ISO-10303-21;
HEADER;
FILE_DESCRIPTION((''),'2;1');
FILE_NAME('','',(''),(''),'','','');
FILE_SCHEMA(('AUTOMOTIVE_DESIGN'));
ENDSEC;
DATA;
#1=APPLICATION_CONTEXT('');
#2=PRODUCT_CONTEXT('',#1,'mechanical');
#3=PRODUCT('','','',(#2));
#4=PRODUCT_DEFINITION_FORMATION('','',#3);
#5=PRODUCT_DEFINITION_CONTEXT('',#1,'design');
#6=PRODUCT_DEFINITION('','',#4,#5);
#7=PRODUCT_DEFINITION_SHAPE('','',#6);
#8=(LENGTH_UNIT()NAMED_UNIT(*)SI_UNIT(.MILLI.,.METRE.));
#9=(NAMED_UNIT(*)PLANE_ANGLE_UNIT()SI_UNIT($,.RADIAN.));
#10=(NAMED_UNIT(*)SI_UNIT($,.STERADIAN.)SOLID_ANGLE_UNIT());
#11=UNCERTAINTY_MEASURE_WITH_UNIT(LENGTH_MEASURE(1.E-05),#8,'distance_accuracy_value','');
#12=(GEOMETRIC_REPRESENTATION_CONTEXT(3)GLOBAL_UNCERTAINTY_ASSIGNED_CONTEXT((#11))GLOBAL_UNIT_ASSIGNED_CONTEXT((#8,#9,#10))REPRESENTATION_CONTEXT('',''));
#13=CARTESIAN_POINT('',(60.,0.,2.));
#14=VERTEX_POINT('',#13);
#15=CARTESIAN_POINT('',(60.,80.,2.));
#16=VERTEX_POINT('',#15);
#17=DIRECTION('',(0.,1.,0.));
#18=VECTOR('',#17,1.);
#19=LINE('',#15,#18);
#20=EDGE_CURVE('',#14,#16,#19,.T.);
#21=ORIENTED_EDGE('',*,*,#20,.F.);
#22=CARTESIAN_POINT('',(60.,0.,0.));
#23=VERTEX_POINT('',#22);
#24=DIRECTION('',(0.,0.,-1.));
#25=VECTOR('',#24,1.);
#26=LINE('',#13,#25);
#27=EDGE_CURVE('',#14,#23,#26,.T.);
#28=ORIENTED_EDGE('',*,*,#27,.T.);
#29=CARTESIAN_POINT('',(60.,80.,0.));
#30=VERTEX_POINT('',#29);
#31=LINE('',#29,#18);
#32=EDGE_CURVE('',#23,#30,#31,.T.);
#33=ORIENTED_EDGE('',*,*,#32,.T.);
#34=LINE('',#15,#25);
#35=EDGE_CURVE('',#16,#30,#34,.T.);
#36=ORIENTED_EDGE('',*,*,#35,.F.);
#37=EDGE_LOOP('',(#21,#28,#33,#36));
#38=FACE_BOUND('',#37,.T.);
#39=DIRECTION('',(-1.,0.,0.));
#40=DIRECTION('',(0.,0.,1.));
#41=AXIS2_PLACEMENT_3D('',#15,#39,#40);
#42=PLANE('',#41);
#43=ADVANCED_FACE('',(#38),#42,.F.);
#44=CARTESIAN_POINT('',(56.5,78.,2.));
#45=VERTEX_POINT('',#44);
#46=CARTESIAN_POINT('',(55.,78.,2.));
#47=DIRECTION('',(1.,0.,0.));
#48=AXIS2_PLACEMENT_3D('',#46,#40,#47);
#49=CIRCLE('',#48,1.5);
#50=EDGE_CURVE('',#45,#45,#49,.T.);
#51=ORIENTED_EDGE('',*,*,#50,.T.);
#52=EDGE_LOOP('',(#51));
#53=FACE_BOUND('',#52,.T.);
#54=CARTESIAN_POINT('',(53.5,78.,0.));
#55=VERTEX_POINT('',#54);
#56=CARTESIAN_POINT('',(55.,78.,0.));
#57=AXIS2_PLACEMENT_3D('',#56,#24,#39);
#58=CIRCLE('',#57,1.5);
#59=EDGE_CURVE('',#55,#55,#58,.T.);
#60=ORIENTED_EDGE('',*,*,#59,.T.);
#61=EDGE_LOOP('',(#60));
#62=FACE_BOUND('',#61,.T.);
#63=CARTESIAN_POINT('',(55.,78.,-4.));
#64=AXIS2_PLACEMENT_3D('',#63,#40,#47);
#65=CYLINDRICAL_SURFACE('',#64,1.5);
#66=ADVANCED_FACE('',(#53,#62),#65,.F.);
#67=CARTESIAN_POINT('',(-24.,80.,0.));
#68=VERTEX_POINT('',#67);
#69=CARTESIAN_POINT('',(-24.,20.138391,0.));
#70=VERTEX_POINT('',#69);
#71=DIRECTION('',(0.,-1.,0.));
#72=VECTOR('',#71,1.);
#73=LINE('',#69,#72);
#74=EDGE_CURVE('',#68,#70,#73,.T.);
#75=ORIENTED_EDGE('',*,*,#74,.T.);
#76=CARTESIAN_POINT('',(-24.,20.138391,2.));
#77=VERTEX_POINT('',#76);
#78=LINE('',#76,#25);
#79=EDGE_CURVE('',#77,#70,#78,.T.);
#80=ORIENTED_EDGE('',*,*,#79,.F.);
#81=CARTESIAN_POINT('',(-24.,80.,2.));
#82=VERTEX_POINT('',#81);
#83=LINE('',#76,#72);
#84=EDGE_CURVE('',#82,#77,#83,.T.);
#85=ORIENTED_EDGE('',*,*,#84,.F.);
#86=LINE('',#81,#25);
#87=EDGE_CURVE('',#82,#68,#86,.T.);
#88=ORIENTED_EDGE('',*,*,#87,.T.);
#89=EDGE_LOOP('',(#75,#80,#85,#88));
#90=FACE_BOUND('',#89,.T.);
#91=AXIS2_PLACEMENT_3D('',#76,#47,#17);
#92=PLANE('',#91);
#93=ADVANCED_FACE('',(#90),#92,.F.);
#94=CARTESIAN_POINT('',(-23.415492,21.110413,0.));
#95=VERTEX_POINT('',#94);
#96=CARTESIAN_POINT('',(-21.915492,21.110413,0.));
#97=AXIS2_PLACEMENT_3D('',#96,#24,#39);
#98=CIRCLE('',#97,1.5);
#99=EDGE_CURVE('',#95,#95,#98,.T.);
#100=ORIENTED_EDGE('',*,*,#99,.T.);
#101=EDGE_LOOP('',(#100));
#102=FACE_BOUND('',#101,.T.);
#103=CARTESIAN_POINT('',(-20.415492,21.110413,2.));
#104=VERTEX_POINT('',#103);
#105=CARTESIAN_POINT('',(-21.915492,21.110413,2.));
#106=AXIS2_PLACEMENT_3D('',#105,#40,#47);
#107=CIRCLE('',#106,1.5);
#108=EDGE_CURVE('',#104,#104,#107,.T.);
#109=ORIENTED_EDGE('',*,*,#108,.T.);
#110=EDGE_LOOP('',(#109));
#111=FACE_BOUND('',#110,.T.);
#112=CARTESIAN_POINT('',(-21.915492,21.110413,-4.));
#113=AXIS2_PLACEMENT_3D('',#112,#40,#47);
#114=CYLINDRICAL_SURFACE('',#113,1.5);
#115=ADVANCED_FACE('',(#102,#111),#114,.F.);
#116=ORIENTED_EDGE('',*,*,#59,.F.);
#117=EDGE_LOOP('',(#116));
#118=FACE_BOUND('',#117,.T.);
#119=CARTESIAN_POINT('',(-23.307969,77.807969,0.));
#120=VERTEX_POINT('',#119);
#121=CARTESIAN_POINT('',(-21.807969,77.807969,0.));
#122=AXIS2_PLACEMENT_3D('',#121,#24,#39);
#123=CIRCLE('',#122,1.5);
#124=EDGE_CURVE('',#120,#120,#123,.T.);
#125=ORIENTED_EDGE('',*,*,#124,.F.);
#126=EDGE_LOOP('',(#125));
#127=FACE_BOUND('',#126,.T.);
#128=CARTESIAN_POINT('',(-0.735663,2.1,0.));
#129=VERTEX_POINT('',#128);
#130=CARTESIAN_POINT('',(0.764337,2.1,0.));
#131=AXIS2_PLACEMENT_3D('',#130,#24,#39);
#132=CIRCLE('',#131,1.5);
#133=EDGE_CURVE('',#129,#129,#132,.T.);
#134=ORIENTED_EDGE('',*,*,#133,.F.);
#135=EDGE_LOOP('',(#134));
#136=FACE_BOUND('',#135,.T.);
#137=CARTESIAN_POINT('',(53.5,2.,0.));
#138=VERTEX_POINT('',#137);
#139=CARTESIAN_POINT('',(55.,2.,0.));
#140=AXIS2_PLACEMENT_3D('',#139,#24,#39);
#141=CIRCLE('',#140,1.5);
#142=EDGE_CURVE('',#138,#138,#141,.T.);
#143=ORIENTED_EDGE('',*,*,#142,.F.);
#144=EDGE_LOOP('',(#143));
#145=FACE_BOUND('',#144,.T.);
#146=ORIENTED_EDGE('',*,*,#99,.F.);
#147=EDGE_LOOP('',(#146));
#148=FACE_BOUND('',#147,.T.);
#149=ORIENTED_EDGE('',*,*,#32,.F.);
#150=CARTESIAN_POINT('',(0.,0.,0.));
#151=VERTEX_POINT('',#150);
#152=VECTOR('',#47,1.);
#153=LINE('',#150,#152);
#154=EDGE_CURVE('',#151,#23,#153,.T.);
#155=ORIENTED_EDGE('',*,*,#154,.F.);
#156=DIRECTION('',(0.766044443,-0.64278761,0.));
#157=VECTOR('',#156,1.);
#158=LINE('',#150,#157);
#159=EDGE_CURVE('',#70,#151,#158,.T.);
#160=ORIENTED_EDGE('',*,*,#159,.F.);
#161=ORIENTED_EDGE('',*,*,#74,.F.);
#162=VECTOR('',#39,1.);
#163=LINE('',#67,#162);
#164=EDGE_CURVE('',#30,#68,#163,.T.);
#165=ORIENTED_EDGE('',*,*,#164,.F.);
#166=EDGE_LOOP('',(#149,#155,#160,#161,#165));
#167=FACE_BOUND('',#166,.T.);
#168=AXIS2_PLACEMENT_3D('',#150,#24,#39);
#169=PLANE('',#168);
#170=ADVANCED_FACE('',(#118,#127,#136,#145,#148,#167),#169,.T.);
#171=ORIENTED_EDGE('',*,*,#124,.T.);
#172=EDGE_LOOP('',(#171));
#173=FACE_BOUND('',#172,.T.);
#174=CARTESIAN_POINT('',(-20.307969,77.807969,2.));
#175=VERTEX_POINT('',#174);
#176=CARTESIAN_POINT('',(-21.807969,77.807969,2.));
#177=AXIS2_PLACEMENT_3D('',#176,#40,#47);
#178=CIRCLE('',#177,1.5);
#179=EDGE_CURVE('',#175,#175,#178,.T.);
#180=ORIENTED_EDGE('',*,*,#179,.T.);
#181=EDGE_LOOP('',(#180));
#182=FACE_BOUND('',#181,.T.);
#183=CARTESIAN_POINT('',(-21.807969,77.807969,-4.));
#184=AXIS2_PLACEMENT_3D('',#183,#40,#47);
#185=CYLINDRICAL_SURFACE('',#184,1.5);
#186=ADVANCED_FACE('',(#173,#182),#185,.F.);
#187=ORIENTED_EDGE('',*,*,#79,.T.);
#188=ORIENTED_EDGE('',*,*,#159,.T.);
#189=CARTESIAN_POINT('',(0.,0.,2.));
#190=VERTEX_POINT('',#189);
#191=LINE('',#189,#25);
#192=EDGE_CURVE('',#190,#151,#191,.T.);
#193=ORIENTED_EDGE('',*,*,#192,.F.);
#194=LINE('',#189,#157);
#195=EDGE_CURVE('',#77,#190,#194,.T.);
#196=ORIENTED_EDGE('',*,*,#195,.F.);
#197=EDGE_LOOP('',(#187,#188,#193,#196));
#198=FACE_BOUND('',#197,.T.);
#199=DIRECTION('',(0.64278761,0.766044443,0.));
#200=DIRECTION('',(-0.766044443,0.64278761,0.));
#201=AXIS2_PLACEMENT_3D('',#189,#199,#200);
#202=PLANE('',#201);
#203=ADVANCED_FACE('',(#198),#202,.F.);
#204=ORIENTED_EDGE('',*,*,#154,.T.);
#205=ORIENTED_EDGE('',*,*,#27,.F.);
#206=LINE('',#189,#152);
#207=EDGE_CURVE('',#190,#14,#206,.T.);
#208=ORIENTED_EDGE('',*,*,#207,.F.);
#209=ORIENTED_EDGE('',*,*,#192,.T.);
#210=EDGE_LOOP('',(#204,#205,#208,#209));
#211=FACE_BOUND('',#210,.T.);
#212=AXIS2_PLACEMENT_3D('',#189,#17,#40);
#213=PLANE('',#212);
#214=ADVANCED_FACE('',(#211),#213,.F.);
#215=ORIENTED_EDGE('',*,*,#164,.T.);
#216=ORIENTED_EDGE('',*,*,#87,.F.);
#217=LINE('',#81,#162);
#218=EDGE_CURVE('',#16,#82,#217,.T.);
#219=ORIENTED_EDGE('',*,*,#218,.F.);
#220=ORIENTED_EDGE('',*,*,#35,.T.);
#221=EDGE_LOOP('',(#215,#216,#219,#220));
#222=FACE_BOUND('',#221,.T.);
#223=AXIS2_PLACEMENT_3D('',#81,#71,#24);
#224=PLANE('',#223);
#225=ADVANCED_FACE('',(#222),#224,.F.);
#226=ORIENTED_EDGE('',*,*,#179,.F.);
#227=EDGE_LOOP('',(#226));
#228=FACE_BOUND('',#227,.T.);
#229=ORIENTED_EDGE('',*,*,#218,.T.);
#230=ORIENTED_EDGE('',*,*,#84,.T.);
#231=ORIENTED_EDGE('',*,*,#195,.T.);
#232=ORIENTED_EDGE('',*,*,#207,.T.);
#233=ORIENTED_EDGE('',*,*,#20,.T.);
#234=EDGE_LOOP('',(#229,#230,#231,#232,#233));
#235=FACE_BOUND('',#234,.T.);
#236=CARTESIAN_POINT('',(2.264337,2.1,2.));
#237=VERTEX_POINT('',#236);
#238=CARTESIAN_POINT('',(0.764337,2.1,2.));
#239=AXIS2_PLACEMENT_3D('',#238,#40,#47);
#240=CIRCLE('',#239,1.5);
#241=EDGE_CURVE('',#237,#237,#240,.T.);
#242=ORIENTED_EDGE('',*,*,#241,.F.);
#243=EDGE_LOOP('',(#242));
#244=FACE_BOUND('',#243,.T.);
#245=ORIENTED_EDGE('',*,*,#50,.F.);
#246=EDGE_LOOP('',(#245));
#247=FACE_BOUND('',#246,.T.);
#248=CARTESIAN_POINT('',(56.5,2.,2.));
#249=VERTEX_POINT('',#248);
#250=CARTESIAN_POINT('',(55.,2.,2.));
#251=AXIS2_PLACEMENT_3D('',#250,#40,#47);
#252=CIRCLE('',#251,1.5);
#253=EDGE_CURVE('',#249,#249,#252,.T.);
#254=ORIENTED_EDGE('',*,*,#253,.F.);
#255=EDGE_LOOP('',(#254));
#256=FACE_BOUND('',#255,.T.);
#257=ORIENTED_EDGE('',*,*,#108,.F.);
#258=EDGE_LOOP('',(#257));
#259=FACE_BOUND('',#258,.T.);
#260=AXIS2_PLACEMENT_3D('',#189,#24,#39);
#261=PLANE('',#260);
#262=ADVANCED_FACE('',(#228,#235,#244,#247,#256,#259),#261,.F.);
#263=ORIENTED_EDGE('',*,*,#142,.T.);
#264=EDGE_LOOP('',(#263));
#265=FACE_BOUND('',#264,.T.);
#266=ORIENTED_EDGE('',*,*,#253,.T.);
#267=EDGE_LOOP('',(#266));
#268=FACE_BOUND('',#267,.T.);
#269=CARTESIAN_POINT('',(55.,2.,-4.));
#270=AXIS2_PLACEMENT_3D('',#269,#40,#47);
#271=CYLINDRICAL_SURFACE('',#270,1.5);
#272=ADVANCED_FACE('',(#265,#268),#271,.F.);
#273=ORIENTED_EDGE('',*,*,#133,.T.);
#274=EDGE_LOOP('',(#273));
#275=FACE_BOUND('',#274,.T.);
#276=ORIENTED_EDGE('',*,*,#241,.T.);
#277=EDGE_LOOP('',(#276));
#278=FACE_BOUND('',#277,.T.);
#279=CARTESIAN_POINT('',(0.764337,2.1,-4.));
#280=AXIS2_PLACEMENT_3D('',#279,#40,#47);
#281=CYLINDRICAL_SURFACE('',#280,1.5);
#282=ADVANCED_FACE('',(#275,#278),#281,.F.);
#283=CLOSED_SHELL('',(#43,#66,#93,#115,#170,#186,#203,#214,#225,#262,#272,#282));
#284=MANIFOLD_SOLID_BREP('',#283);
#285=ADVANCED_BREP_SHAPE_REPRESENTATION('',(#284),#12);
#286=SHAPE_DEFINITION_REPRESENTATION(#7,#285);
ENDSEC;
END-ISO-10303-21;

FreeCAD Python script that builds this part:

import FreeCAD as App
import Part
import Sketcher
Q = App.Units.Quantity


def add_polygon(sketch, points):
    """Adds a closed chain of lines whose ends are joined by coincident constraints."""
    first, n = sketch.GeometryCount, len(points)
    for a, b in zip(points, points[1:] + points[:1]):
        sketch.addGeometry(Part.LineSegment(App.Vector(*a, 0), App.Vector(*b, 0)), False)
    for i in range(n):
        sketch.addConstraint(Sketcher.Constraint("Coincident", first + i, 2, first + (i + 1) % n, 1))

doc = App.newDocument("Part")
params = doc.addObject("Spreadsheet::Sheet", "Params")
for row, (alias, value) in enumerate([
    ("sketch1_width", "60 mm"),
    ("sketch1_width2", "84 mm"),
    ("sketch1_height", "80 mm"),
    ("pad1_length", "2 mm"),
    ("sketch2_diameter", "3 mm"),
    ("pocket1_length", "6 mm"),
], start=1):
    params.set(f"A{row}", alias)
    params.set(f"B{row}", "=" + value)
    params.setAlias(f"B{row}", alias)

body = doc.addObject("PartDesign::Body", "Body")

# Sketch on XY plane
sketch1 = body.newObject("Sketcher::SketchObject", "Sketch")
sketch1.AttachmentSupport = (doc.getObject("XY_Plane"), [""])
sketch1.MapMode = "FlatFace"
add_polygon(sketch1, [(0, 0), (60, 0), (60, 80), (-24, 80), (-24, 20.138391)])  # lines 0-4
sketch1.addConstraint(Sketcher.Constraint("Horizontal", 0))
sketch1.addConstraint(Sketcher.Constraint("Vertical", 1))
sketch1.addConstraint(Sketcher.Constraint("Horizontal", 2))
sketch1.addConstraint(Sketcher.Constraint("Vertical", 3))
sketch1.addConstraint(Sketcher.Constraint("Coincident", 4, 2, -1, 1))
sketch1.addConstraint(Sketcher.Constraint("DistanceX", 0, 1, 0, 2, Q("60 mm")))
sketch1.addConstraint(Sketcher.Constraint("DistanceX", 2, 2, 2, 1, Q("84 mm")))
sketch1.addConstraint(Sketcher.Constraint("DistanceY", 1, 1, 1, 2, Q("80 mm")))
sketch1.addConstraint(Sketcher.Constraint("Angle", 4, Q("-40 deg")))
sketch1.setExpression("Constraints[10]", "Params.sketch1_width")
sketch1.setExpression("Constraints[11]", "Params.sketch1_width2")
sketch1.setExpression("Constraints[12]", "Params.sketch1_height")
pad1 = body.newObject("PartDesign::Pad", "Pad")
pad1.Profile = sketch1
pad1.setExpression("Length", "Params.pad1_length")

# Sketch on XY plane
sketch2 = body.newObject("Sketcher::SketchObject", "Sketch001")
sketch2.AttachmentSupport = (doc.getObject("XY_Plane"), [""])
sketch2.MapMode = "FlatFace"
sketch2.AttachmentOffset = App.Placement(App.Vector(0, 0, 2), App.Rotation())
sketch2.addGeometry(Part.Circle(App.Vector(-21.807969, 77.807969, 0), App.Vector(0, 0, 1), 1.5), False)
sketch2.addGeometry(Part.Circle(App.Vector(-21.915492, 21.110413, 0), App.Vector(0, 0, 1), 1.5), False)
sketch2.addGeometry(Part.Circle(App.Vector(0.764337, 2.1, 0), App.Vector(0, 0, 1), 1.5), False)
sketch2.addGeometry(Part.Circle(App.Vector(55, 78, 0), App.Vector(0, 0, 1), 1.5), False)
sketch2.addGeometry(Part.Circle(App.Vector(55, 2, 0), App.Vector(0, 0, 1), 1.5), False)
sketch2.addConstraint(Sketcher.Constraint("Equal", 0, 1))
sketch2.addConstraint(Sketcher.Constraint("Equal", 1, 2))
sketch2.addConstraint(Sketcher.Constraint("Equal", 2, 3))
sketch2.addConstraint(Sketcher.Constraint("Equal", 3, 4))
sketch2.addConstraint(Sketcher.Constraint("Vertical", 3, 3, 4, 3))
sketch2.addConstraint(Sketcher.Constraint("Diameter", 0, Q("3 mm")))
sketch2.addConstraint(Sketcher.Constraint("DistanceX", -1, 1, 3, 3, Q("55 mm")))
sketch2.addConstraint(Sketcher.Constraint("DistanceY", -1, 1, 3, 3, Q("78 mm")))
sketch2.addConstraint(Sketcher.Constraint("DistanceY", -1, 1, 4, 3, Q("2 mm")))
sketch2.addConstraint(Sketcher.Constraint("DistanceY", -1, 1, 2, 3, Q("2.1 mm")))
sketch2.addConstraint(Sketcher.Constraint("DistanceX", 0, 3, -1, 1, Q("21.807969 mm")))
sketch2.addConstraint(Sketcher.Constraint("DistanceY", -1, 1, 0, 3, Q("77.807969 mm")))
sketch2.addConstraint(Sketcher.Constraint("DistanceX", 1, 3, 2, 3, Q("22.67983 mm")))
sketch2.addConstraint(Sketcher.Constraint("DistanceX", 1, 3, -1, 1, Q("21.915492 mm")))
sketch2.addConstraint(Sketcher.Constraint("DistanceY", -1, 1, 1, 3, Q("21.110413 mm")))
sketch2.setExpression("Constraints[5]", "Params.sketch2_diameter")
pocket1 = body.newObject("PartDesign::Pocket", "Pocket")
pocket1.Profile = sketch2
pocket1.setExpression("Length", "Params.pocket1_length")

doc.recompute()
